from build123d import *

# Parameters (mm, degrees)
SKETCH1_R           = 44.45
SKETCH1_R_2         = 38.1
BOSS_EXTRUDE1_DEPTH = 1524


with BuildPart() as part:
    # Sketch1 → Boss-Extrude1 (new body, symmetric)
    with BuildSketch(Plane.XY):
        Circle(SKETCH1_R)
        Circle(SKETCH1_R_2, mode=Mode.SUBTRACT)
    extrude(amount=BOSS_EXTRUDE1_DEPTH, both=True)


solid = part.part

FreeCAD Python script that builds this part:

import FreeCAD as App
import Part
import Sketcher

V = App.Vector
Q = App.Units.Quantity

doc = App.newDocument("Part")
params = doc.addObject("Spreadsheet::Sheet", "Params")
for row, (alias, value) in enumerate([
    ("sketch1_diameter", "3 in"),
    ("sketch1_diameter2", "3.5 in"),
    ("pad1_length", "120 in"),
], start=1):
    params.set(f"A{row}", alias)
    params.set(f"B{row}", "=" + value)
    params.setAlias(f"B{row}", alias)

body = doc.addObject("PartDesign::Body", "Body")

# Sketch on XY plane
sketch1 = doc.addObject("Sketcher::SketchObject", "Sketch")
body.addObject(sketch1)
sketch1.AttachmentSupport = (doc.XY_Plane, [""])
sketch1.MapMode = "FlatFace"
sketch1.addGeometry([
    Part.Circle(V(0, 0, 0), V(0, 0, 1), 44),
    Part.Circle(V(0, 0, 0), V(0, 0, 1), 38),
], False)
sketch1.addConstraint([
    Sketcher.Constraint("Coincident", 0, 3, -1, 1),
    Sketcher.Constraint("Coincident", 1, 3, -1, 1),
    Sketcher.Constraint("Diameter", 1, Q("3 in")),
    Sketcher.Constraint("Diameter", 0, Q("3.5 in")),
])
sketch1.setExpression("Constraints[2]", "Params.sketch1_diameter")
sketch1.setExpression("Constraints[3]", "Params.sketch1_diameter2")
pad1 = doc.addObject("PartDesign::Pad", "Pad")
body.addObject(pad1)
pad1.Profile = sketch1
pad1.setExpression("Length", "Params.pad1_length")
pad1.Midplane = True

doc.recompute()
